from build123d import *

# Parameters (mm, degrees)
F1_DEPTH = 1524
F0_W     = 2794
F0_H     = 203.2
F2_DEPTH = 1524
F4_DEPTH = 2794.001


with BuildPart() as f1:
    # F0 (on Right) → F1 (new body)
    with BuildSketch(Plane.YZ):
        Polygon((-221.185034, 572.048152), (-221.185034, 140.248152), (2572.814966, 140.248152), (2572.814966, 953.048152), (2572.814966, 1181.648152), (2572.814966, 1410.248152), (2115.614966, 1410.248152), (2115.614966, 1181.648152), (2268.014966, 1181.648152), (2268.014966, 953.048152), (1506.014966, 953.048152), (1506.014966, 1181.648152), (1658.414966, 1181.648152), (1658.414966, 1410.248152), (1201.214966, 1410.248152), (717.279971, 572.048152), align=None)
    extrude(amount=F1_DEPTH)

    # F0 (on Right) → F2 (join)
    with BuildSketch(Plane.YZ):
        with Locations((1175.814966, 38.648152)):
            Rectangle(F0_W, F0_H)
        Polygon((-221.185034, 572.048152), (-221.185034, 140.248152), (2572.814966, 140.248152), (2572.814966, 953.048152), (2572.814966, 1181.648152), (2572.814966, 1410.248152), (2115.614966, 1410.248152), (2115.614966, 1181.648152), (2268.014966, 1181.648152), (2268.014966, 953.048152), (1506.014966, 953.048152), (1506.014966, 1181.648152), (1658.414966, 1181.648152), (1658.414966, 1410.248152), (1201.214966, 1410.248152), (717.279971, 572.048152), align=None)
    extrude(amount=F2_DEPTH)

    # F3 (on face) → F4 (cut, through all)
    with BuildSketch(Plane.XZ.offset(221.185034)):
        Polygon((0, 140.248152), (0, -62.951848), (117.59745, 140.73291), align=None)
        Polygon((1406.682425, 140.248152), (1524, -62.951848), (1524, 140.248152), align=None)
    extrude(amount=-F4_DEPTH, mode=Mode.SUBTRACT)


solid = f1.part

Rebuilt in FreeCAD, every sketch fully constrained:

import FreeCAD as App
import Part
import Sketcher

V = App.Vector
Q = App.Units.Quantity

doc = App.newDocument("Part")
params = doc.addObject("Spreadsheet::Sheet", "Params")
for row, (alias, value) in enumerate([
    ("sketch1_width", "110 in"),
    ("sketch1_width2", "18 in"),
    ("sketch1_width3", "6 in"),
    ("sketch1_width4", "30 in"),
    ("sketch1_height", "17 in"),
    ("pad1_length", "60 in"),
    ("sketch2_width", "110 in"),
    ("sketch2_width2", "18 in"),
    ("sketch2_width3", "6 in"),
    ("sketch2_width4", "30 in"),
    ("sketch2_height", "58 in"),
    ("pad2_length", "60 in"),
    ("sketch3_height", "8 in"),
], start=1):
    params.set(f"A{row}", alias)
    params.set(f"B{row}", "=" + value)
    params.setAlias(f"B{row}", alias)

body = doc.addObject("PartDesign::Body", "Body")

# Sketch on YZ plane
sketch1 = doc.addObject("Sketcher::SketchObject", "Sketch")
body.addObject(sketch1)
sketch1.AttachmentSupport = (doc.YZ_Plane, [""])
sketch1.MapMode = "FlatFace"
sketch1.addGeometry([
    Part.LineSegment(V(-221.185034, 572.048152, 0), V(-221.185034, 140.248152, 0)),  # 0
    Part.LineSegment(V(-221.185034, 140.248152, 0), V(2572.814966, 140.248152, 0)),  # 1
    Part.LineSegment(V(2572.814966, 140.248152, 0), V(2572.814966, 1410.248152, 0)),  # 2
    Part.LineSegment(V(2572.814966, 1410.248152, 0), V(2115.614966, 1410.248152, 0)),  # 3
    Part.LineSegment(V(2115.614966, 1410.248152, 0), V(2115.614966, 1181.648152, 0)),  # 4
    Part.LineSegment(V(2115.614966, 1181.648152, 0), V(2268.014966, 1181.648152, 0)),  # 5
    Part.LineSegment(V(2268.014966, 1181.648152, 0), V(2268.014966, 953.048152, 0)),  # 6
    Part.LineSegment(V(2268.014966, 953.048152, 0), V(1506.014966, 953.048152, 0)),  # 7
    Part.LineSegment(V(1506.014966, 953.048152, 0), V(1506.014966, 1181.648152, 0)),  # 8
    Part.LineSegment(V(1506.014966, 1181.648152, 0), V(1658.414966, 1181.648152, 0)),  # 9
    Part.LineSegment(V(1658.414966, 1181.648152, 0), V(1658.414966, 1410.248152, 0)),  # 10
    Part.LineSegment(V(1658.414966, 1410.248152, 0), V(1201.214966, 1410.248152, 0)),  # 11
    Part.LineSegment(V(1201.214966, 1410.248152, 0), V(717.279971, 572.048152, 0)),  # 12
    Part.LineSegment(V(717.279971, 572.048152, 0), V(-221.185034, 572.048152, 0)),  # 13
], False)
sketch1.addConstraint([
    Sketcher.Constraint("Coincident", 0, 2, 1, 1),
    Sketcher.Constraint("Coincident", 1, 2, 2, 1),
    Sketcher.Constraint("Coincident", 2, 2, 3, 1),
    Sketcher.Constraint("Coincident", 3, 2, 4, 1),
    Sketcher.Constraint("Coincident", 4, 2, 5, 1),
    Sketcher.Constraint("Coincident", 5, 2, 6, 1),
    Sketcher.Constraint("Coincident", 6, 2, 7, 1),
    Sketcher.Constraint("Coincident", 7, 2, 8, 1),
    Sketcher.Constraint("Coincident", 8, 2, 9, 1),
    Sketcher.Constraint("Coincident", 9, 2, 10, 1),
    Sketcher.Constraint("Coincident", 10, 2, 11, 1),
    Sketcher.Constraint("Coincident", 11, 2, 12, 1),
    Sketcher.Constraint("Coincident", 12, 2, 13, 1),
    Sketcher.Constraint("Coincident", 13, 2, 0, 1),
    Sketcher.Constraint("Vertical", 0),
    Sketcher.Constraint("Horizontal", 1),
    Sketcher.Constraint("Vertical", 2),
    Sketcher.Constraint("Horizontal", 3),
    Sketcher.Constraint("Vertical", 4),
    Sketcher.Constraint("Horizontal", 5),
    Sketcher.Constraint("Vertical", 6),
    Sketcher.Constraint("Horizontal", 7),
    Sketcher.Constraint("Vertical", 8),
    Sketcher.Constraint("Horizontal", 9),
    Sketcher.Constraint("Vertical", 10),
    Sketcher.Constraint("Horizontal", 11),
    Sketcher.Constraint("Horizontal", 13),
    Sketcher.Constraint("Horizontal", 5, 2, 8, 2),
    Sketcher.Constraint("Horizontal", 3, 2, 10, 2),
    Sketcher.Constraint("Equal", 5, 9),
    Sketcher.Constraint("Equal", 3, 11),
    Sketcher.Constraint("Equal", 4, 6),
    Sketcher.Constraint("DistanceX", 1, 1, 1, 2, Q("110 in")),
    Sketcher.Constraint("DistanceX", 3, 2, 3, 1, Q("18 in")),
    Sketcher.Constraint("DistanceX", 5, 1, 5, 2, Q("6 in")),
    Sketcher.Constraint("DistanceX", 7, 2, 7, 1, Q("30 in")),
    Sketcher.Constraint("DistanceY", 0, 2, 0, 1, Q("17 in")),
    Sketcher.Constraint("DistanceY", 2, 1, 2, 2, Q("50 in")),
    Sketcher.Constraint("DistanceY", 4, 2, 4, 1, Q("9 in")),
    Sketcher.Constraint("Angle", 12, Q("-120 deg")),
    Sketcher.Constraint("DistanceY", -1, 1, 0, 2, Q("140.248152 mm")),
    Sketcher.Constraint("DistanceX", -1, 1, 12, 2, Q("717.279971 mm")),
])
sketch1.setExpression("Constraints[32]", "Params.sketch1_width")
sketch1.setExpression("Constraints[33]", "Params.sketch1_width2")
sketch1.setExpression("Constraints[34]", "Params.sketch1_width3")
sketch1.setExpression("Constraints[35]", "Params.sketch1_width4")
sketch1.setExpression("Constraints[36]", "Params.sketch1_height")
pad1 = doc.addObject("PartDesign::Pad", "Pad")
body.addObject(pad1)
pad1.Profile = sketch1
pad1.setExpression("Length", "Params.pad1_length")

# Sketch on YZ plane
sketch2 = doc.addObject("Sketcher::SketchObject", "Sketch001")
body.addObject(sketch2)
sketch2.AttachmentSupport = (doc.YZ_Plane, [""])
sketch2.MapMode = "FlatFace"
sketch2.addGeometry([
    Part.LineSegment(V(-221.185034, -62.951848, 0), V(2572.814966, -62.951848, 0)),  # 0
    Part.LineSegment(V(2572.814966, -62.951848, 0), V(2572.814966, 1410.248152, 0)),  # 1
    Part.LineSegment(V(2572.814966, 1410.248152, 0), V(2115.614966, 1410.248152, 0)),  # 2
    Part.LineSegment(V(2115.614966, 1410.248152, 0), V(2115.614966, 1181.648152, 0)),  # 3
    Part.LineSegment(V(2115.614966, 1181.648152, 0), V(2268.014966, 1181.648152, 0)),  # 4
    Part.LineSegment(V(2268.014966, 1181.648152, 0), V(2268.014966, 953.048152, 0)),  # 5
    Part.LineSegment(V(2268.014966, 953.048152, 0), V(1506.014966, 953.048152, 0)),  # 6
    Part.LineSegment(V(1506.014966, 953.048152, 0), V(1506.014966, 1181.648152, 0)),  # 7
    Part.LineSegment(V(1506.014966, 1181.648152, 0), V(1658.414966, 1181.648152, 0)),  # 8
    Part.LineSegment(V(1658.414966, 1181.648152, 0), V(1658.414966, 1410.248152, 0)),  # 9
    Part.LineSegment(V(1658.414966, 1410.248152, 0), V(1201.214966, 1410.248152, 0)),  # 10
    Part.LineSegment(V(1201.214966, 1410.248152, 0), V(717.279971, 572.048152, 0)),  # 11
    Part.LineSegment(V(717.279971, 572.048152, 0), V(-221.185034, 572.048152, 0)),  # 12
    Part.LineSegment(V(-221.185034, 572.048152, 0), V(-221.185034, -62.951848, 0)),  # 13
], False)
sketch2.addConstraint([
    Sketcher.Constraint("Coincident", 0, 2, 1, 1),
    Sketcher.Constraint("Coincident", 1, 2, 2, 1),
    Sketcher.Constraint("Coincident", 2, 2, 3, 1),
    Sketcher.Constraint("Coincident", 3, 2, 4, 1),
    Sketcher.Constraint("Coincident", 4, 2, 5, 1),
    Sketcher.Constraint("Coincident", 5, 2, 6, 1),
    Sketcher.Constraint("Coincident", 6, 2, 7, 1),
    Sketcher.Constraint("Coincident", 7, 2, 8, 1),
    Sketcher.Constraint("Coincident", 8, 2, 9, 1),
    Sketcher.Constraint("Coincident", 9, 2, 10, 1),
    Sketcher.Constraint("Coincident", 10, 2, 11, 1),
    Sketcher.Constraint("Coincident", 11, 2, 12, 1),
    Sketcher.Constraint("Coincident", 12, 2, 13, 1),
    Sketcher.Constraint("Coincident", 13, 2, 0, 1),
    Sketcher.Constraint("Horizontal", 0),
    Sketcher.Constraint("Vertical", 1),
    Sketcher.Constraint("Horizontal", 2),
    Sketcher.Constraint("Vertical", 3),
    Sketcher.Constraint("Horizontal", 4),
    Sketcher.Constraint("Vertical", 5),
    Sketcher.Constraint("Horizontal", 6),
    Sketcher.Constraint("Vertical", 7),
    Sketcher.Constraint("Horizontal", 8),
    Sketcher.Constraint("Vertical", 9),
    Sketcher.Constraint("Horizontal", 10),
    Sketcher.Constraint("Horizontal", 12),
    Sketcher.Constraint("Vertical", 13),
    Sketcher.Constraint("Horizontal", 4, 2, 7, 2),
    Sketcher.Constraint("Horizontal", 2, 2, 9, 2),
    Sketcher.Constraint("Equal", 4, 8),
    Sketcher.Constraint("Equal", 2, 10),
    Sketcher.Constraint("Equal", 3, 5),
    Sketcher.Constraint("DistanceX", 0, 1, 0, 2, Q("110 in")),
    Sketcher.Constraint("DistanceX", 2, 2, 2, 1, Q("18 in")),
    Sketcher.Constraint("DistanceX", 4, 1, 4, 2, Q("6 in")),
    Sketcher.Constraint("DistanceX", 6, 2, 6, 1, Q("30 in")),
    Sketcher.Constraint("DistanceY", 1, 1, 1, 2, Q("58 in")),
    Sketcher.Constraint("DistanceY", 3, 2, 3, 1, Q("9 in")),
    Sketcher.Constraint("DistanceY", 13, 2, 13, 1, Q("25 in")),
    Sketcher.Constraint("Angle", 11, Q("-120 deg")),
    Sketcher.Constraint("DistanceY", -1, 1, 1, 2, Q("1410.248152 mm")),
    Sketcher.Constraint("DistanceX", -1, 1, 11, 2, Q("717.279971 mm")),
])
sketch2.setExpression("Constraints[32]", "Params.sketch2_width")
sketch2.setExpression("Constraints[33]", "Params.sketch2_width2")
sketch2.setExpression("Constraints[34]", "Params.sketch2_width3")
sketch2.setExpression("Constraints[35]", "Params.sketch2_width4")
sketch2.setExpression("Constraints[36]", "Params.sketch2_height")
pad2 = doc.addObject("PartDesign::Pad", "Pad001")
body.addObject(pad2)
pad2.Profile = sketch2
pad2.setExpression("Length", "Params.pad2_length")

# Sketch on XZ plane
sketch3 = doc.addObject("Sketcher::SketchObject", "Sketch002")
body.addObject(sketch3)
sketch3.AttachmentSupport = (doc.XZ_Plane, [""])
sketch3.MapMode = "FlatFace"
sketch3.AttachmentOffset = App.Placement(V(0, 0, 221.185034), App.Rotation())
sketch3.addGeometry([
    Part.LineSegment(V(0, 140.248152, 0), V(0, -62.951848, 0)),  # 0
    Part.LineSegment(V(0, -62.951848, 0), V(117.59745, 140.73291, 0)),  # 1
    Part.LineSegment(V(117.59745, 140.73291, 0), V(0, 140.248152, 0)),  # 2
    Part.LineSegment(V(1406.682425, 140.248152, 0), V(1524, -62.951848, 0)),  # 3
    Part.LineSegment(V(1524, -62.951848, 0), V(1524, 140.248152, 0)),  # 4
    Part.LineSegment(V(1524, 140.248152, 0), V(1406.682425, 140.248152, 0)),  # 5
], False)
sketch3.addConstraint([
    Sketcher.Constraint("Coincident", 0, 2, 1, 1),
    Sketcher.Constraint("Coincident", 1, 2, 2, 1),
    Sketcher.Constraint("Coincident", 2, 2, 0, 1),
    Sketcher.Constraint("Coincident", 3, 2, 4, 1),
    Sketcher.Constraint("Coincident", 4, 2, 5, 1),
    Sketcher.Constraint("Coincident", 5, 2, 3, 1),
    Sketcher.Constraint("Vertical", 0),
    Sketcher.Constraint("Vertical", 4),
    Sketcher.Constraint("Horizontal", 5),
    Sketcher.Constraint("PointOnObject", 0, 2, -2),
    Sketcher.Constraint("Horizontal", 0, 2, 3, 2),
    Sketcher.Constraint("Horizontal", 2, 2, 4, 2),
    Sketcher.Constraint("DistanceY", 0, 2, 0, 1, Q("8 in")),
    Sketcher.Constraint("DistanceX", -1, 1, 3, 2, Q("60 in")),
    Sketcher.Constraint("Angle", 1, Q("60 deg")),
    Sketcher.Constraint("Angle", 3, Q("-60 deg")),
    Sketcher.Constraint("Distance", 1, Q("235.1949 mm")),
    Sketcher.Constraint("DistanceY", -1, 1, 1, 2, Q("140.73291 mm")),
])
sketch3.setExpression("Constraints[12]", "Params.sketch3_height")
pocket1 = doc.addObject("PartDesign::Pocket", "Pocket")
body.addObject(pocket1)
pocket1.Profile = sketch3
pocket1.Type = "ThroughAll"

doc.recompute()
